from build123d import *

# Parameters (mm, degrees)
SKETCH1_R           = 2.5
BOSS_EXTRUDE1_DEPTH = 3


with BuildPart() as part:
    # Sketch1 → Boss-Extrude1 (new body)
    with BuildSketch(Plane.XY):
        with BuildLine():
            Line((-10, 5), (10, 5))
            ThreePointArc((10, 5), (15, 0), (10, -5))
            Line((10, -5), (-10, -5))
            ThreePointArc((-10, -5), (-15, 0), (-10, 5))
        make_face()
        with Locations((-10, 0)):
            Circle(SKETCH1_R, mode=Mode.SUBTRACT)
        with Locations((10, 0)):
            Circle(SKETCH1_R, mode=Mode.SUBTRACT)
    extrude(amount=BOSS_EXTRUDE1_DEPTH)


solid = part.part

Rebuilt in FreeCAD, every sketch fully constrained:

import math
import FreeCAD as App
import Part
import Sketcher
from FreeCAD import Vector

doc = App.newDocument("Part")
body = doc.addObject("PartDesign::Body", "Body")

# Sketch on XY plane
sketch1 = body.newObject("Sketcher::SketchObject", "Sketch")
sketch1.AttachmentSupport = (doc.getObject("XY_Plane"), [""])
sketch1.MapMode = "FlatFace"
sketch1.addGeometry(Part.LineSegment(Vector(10, 5, 0), Vector(-10, 5, 0)), False)
sketch1.addGeometry(Part.ArcOfCircle(Part.Circle(Vector(-10, 0, 0), Vector(0, 0, 1), 5), math.radians(90), math.radians(270)), False)
sketch1.addGeometry(Part.LineSegment(Vector(-10, -5, 0), Vector(10, -5, 0)), False)
sketch1.addGeometry(Part.ArcOfCircle(Part.Circle(Vector(10, 0, 0), Vector(0, 0, 1), 5), math.radians(-90), math.radians(90)), False)
sketch1.addGeometry(Part.Circle(Vector(10, 0, 0), Vector(0, 0, 1), 2.5), False)
sketch1.addGeometry(Part.Circle(Vector(-10, 0, 0), Vector(0, 0, 1), 2.5), False)
sketch1.addConstraint(Sketcher.Constraint("Tangent", 0, 2, 1, 1))
sketch1.addConstraint(Sketcher.Constraint("Tangent", 1, 2, 2, 1))
sketch1.addConstraint(Sketcher.Constraint("Tangent", 2, 2, 3, 1))
sketch1.addConstraint(Sketcher.Constraint("Tangent", 3, 2, 0, 1))
sketch1.addConstraint(Sketcher.Constraint("Horizontal", 0))
sketch1.addConstraint(Sketcher.Constraint("Horizontal", 2))
sketch1.addConstraint(Sketcher.Constraint("Coincident", 4, 3, 3, 3))
sketch1.addConstraint(Sketcher.Constraint("Coincident", 5, 3, 1, 3))
sketch1.addConstraint(Sketcher.Constraint("Equal", 4, 5))
sketch1.addConstraint(Sketcher.Constraint("Symmetric", 1, 3, 3, 3, -1, 1))
sketch1.addConstraint(Sketcher.Constraint("Diameter", 4, 5.0))
sketch1.addConstraint(Sketcher.Constraint("Radius", 1, 5.0))
sketch1.addConstraint(Sketcher.Constraint("DistanceX", 0, 2, 0, 1, 20.0))
pad1 = body.newObject("PartDesign::Pad", "Pad")
pad1.Profile = sketch1
pad1.Length = 3

doc.recompute()
